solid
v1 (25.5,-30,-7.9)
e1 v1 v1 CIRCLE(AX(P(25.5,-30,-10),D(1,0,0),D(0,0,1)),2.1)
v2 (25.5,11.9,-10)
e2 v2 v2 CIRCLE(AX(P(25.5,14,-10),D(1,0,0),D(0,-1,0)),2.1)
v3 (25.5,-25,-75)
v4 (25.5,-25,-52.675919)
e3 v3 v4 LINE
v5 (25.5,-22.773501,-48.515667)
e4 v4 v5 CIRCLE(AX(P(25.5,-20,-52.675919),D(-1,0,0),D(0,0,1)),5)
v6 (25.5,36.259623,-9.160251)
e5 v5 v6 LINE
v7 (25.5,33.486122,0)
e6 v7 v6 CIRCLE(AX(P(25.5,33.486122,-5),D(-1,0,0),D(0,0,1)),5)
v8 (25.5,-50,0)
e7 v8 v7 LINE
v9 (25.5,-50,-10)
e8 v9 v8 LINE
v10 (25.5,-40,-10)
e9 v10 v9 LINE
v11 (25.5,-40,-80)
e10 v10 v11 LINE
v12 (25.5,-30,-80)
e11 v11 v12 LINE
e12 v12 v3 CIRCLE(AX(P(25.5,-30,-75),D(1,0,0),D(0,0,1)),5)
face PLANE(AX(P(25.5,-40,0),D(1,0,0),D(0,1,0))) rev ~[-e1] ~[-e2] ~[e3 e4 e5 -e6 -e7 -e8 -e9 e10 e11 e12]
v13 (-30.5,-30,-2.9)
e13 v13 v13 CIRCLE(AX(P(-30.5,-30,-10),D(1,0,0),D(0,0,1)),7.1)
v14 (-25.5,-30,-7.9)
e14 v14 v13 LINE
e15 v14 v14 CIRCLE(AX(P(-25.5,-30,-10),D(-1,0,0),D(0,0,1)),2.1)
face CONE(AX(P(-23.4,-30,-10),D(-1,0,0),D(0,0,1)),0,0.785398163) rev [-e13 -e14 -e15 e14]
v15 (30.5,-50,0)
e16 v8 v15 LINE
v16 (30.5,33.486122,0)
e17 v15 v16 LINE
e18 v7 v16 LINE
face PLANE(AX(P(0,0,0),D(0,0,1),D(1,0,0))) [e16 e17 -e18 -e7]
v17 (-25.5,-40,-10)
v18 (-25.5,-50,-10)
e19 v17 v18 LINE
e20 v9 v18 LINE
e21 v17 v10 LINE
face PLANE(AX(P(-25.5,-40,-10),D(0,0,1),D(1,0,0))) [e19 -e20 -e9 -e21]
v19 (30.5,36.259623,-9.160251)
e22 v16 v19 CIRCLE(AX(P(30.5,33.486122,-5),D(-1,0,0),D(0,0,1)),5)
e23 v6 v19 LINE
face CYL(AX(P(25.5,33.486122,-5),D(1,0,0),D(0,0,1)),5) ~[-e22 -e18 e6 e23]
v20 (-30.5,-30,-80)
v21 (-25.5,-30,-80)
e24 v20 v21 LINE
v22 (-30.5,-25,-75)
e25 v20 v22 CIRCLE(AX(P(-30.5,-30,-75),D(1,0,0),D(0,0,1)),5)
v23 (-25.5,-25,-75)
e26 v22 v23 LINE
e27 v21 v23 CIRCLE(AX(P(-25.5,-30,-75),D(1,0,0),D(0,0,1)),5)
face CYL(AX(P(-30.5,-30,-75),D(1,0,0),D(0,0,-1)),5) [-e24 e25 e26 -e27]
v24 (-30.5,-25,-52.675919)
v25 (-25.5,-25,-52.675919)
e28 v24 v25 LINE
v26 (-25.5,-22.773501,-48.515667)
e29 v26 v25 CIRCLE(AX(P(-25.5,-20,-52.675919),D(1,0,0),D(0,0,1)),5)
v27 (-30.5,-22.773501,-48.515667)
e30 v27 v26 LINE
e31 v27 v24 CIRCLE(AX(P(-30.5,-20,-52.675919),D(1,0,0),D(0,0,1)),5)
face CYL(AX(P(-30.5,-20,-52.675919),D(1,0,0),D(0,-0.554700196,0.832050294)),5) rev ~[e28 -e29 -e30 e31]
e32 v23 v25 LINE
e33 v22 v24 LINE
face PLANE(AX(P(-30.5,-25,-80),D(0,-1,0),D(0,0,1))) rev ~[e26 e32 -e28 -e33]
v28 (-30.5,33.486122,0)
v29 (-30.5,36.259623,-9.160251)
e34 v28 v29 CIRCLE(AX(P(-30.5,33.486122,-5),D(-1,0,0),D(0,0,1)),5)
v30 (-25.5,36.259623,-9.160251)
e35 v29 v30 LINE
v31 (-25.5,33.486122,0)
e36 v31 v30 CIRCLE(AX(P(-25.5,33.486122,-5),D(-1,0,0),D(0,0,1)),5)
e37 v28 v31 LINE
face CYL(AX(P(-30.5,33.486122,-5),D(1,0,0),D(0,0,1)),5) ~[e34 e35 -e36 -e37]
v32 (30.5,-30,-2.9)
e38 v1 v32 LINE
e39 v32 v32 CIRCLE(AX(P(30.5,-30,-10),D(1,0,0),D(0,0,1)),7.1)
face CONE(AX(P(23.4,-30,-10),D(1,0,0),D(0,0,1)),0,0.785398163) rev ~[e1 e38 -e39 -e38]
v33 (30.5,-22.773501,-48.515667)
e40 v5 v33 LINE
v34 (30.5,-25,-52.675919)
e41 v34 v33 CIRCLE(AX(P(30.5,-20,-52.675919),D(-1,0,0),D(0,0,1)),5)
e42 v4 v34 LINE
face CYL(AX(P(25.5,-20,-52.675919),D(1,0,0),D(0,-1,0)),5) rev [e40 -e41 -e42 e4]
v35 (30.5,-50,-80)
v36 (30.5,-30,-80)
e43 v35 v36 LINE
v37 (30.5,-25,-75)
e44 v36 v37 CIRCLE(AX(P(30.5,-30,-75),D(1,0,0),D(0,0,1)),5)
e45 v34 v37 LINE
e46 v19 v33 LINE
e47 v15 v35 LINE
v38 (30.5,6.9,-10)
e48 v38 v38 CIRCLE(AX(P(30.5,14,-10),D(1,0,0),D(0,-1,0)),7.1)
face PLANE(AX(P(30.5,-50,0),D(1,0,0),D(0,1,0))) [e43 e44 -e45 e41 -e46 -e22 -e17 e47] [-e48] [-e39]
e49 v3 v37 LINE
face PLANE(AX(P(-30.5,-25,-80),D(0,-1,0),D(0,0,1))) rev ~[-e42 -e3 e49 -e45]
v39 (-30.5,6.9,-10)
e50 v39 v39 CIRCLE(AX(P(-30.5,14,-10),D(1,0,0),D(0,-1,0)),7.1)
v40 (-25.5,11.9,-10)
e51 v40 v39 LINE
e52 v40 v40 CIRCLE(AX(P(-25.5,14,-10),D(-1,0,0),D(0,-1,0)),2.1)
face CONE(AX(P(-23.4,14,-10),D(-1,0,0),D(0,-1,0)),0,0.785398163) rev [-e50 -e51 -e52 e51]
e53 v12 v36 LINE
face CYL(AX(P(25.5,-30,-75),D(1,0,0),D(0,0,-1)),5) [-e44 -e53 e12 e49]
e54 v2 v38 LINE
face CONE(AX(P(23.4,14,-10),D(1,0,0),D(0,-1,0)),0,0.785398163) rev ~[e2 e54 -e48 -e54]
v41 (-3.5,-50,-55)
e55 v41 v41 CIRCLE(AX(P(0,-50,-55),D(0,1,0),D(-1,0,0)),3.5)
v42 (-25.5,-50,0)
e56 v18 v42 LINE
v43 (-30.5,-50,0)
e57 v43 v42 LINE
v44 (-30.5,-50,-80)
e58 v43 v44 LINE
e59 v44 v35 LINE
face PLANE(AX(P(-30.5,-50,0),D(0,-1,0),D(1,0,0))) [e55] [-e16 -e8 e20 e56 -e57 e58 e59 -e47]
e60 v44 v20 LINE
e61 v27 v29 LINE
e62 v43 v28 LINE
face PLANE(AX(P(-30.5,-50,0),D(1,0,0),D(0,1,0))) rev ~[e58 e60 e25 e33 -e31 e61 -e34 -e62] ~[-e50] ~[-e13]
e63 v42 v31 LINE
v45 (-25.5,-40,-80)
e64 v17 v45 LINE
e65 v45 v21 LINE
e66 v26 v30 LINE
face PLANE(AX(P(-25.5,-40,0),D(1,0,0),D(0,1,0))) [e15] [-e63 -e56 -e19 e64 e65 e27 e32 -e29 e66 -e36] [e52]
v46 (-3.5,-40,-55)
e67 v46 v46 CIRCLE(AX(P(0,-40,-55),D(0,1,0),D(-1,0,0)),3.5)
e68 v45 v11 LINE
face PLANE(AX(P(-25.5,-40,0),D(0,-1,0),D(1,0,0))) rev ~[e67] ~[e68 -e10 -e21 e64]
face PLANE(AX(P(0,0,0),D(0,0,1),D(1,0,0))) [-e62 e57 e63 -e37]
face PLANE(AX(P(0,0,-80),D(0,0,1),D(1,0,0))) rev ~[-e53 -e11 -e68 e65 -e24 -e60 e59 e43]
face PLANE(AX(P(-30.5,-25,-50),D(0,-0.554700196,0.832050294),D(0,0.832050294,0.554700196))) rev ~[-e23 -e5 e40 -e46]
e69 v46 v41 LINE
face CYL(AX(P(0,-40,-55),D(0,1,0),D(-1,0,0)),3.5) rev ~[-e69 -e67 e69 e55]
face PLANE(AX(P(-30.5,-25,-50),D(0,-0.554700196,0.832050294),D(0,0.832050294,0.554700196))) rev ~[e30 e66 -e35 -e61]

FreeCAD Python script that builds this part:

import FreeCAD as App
import Part
import Sketcher
Q = App.Units.Quantity


def edges_at(feature, points):
    """Names of the edges that pass closest to the given points."""
    edges = feature.Shape.Edges
    near = lambda p: min(range(len(edges)), key=lambda i: edges[i].distToShape(Part.Vertex(*p))[0])
    return sorted({f"Edge{near(p) + 1}" for p in points})


def add_polygon(sketch, points):
    """Adds a closed chain of lines whose ends are joined by coincident constraints."""
    first, n = sketch.GeometryCount, len(points)
    for a, b in zip(points, points[1:] + points[:1]):
        sketch.addGeometry(Part.LineSegment(App.Vector(*a, 0), App.Vector(*b, 0)), False)
    for i in range(n):
        sketch.addConstraint(Sketcher.Constraint("Coincident", first + i, 2, first + (i + 1) % n, 1))

doc = App.newDocument("Part")
body = doc.addObject("PartDesign::Body", "Body")

# Sketch on XY plane
sketch1 = body.newObject("Sketcher::SketchObject", "Sketch")
sketch1.AttachmentSupport = (doc.getObject("XY_Plane"), [""])
sketch1.MapMode = "FlatFace"
add_polygon(sketch1, [(-30, 50), (-30, -50), (30, -50), (30, 50)])  # lines 0-3
sketch1.addConstraint(Sketcher.Constraint("Vertical", 0))
sketch1.addConstraint(Sketcher.Constraint("Horizontal", 1))
sketch1.addConstraint(Sketcher.Constraint("Vertical", 2))
sketch1.addConstraint(Sketcher.Constraint("Horizontal", 3))
sketch1.addConstraint(Sketcher.Constraint("Symmetric", 0, 2, 2, 2, -1, 1))
sketch1.addConstraint(Sketcher.Constraint("DistanceX", 1, 1, 1, 2, Q("61 mm")))
sketch1.addConstraint(Sketcher.Constraint("DistanceY", 0, 2, 0, 1, Q("100 mm")))
pad1 = body.newObject("PartDesign::Pad", "Pad")
pad1.Profile = sketch1
pad1.Length = 80
pad1.Reversed = True

# Sketch on YZ plane
sketch2 = body.newObject("Sketcher::SketchObject", "Sketch001")
sketch2.AttachmentSupport = (doc.getObject("YZ_Plane"), [""])
sketch2.MapMode = "FlatFace"
sketch2.AttachmentOffset = App.Placement(App.Vector(0, 0, -30.5), App.Rotation())
add_polygon(sketch2, [(65, -95), (-65, -95), (-65, 15), (65, 15)])  # lines 0-3
add_polygon(sketch2, [(-50, -80), (-25, -80), (-25, -50), (50, 0), (-50, 0)])  # lines 4-8
sketch2.addConstraint(Sketcher.Constraint("Horizontal", 0))
sketch2.addConstraint(Sketcher.Constraint("Vertical", 1))
sketch2.addConstraint(Sketcher.Constraint("Horizontal", 2))
sketch2.addConstraint(Sketcher.Constraint("Vertical", 3))
sketch2.addConstraint(Sketcher.Constraint("Horizontal", 4))
sketch2.addConstraint(Sketcher.Constraint("Vertical", 5))
sketch2.addConstraint(Sketcher.Constraint("Horizontal", 7))
sketch2.addConstraint(Sketcher.Constraint("Vertical", 8))
sketch2.addConstraint(Sketcher.Constraint("Symmetric", 6, 2, 7, 2, -1, 1))
sketch2.addConstraint(Sketcher.Constraint("DistanceX", 4, 1, 4, 2, Q("25 mm")))
sketch2.addConstraint(Sketcher.Constraint("DistanceX", 7, 2, 7, 1, Q("100 mm")))
sketch2.addConstraint(Sketcher.Constraint("DistanceY", 5, 1, 5, 2, Q("30 mm")))
sketch2.addConstraint(Sketcher.Constraint("DistanceY", 8, 2, 8, 1, Q("80 mm")))
sketch2.addConstraint(Sketcher.Constraint("DistanceX", 0, 2, 0, 1, Q("130.37 mm")))
sketch2.addConstraint(Sketcher.Constraint("DistanceY", 1, 1, 1, 2, Q("110.37 mm")))
sketch2.addConstraint(Sketcher.Constraint("DistanceX", 0, 2, -1, 1, Q("65.185 mm")))
sketch2.addConstraint(Sketcher.Constraint("DistanceY", 0, 2, -1, 1, Q("95.185 mm")))
pocket1 = body.newObject("PartDesign::Pocket", "Pocket")
pocket1.Profile = sketch2
pocket1.Type = "ThroughAll"
pocket1.Reversed = True

# Sketch on XY plane
sketch3 = body.newObject("Sketcher::SketchObject", "Sketch002")
sketch3.AttachmentSupport = (doc.getObject("XY_Plane"), [""])
sketch3.MapMode = "FlatFace"
add_polygon(sketch3, [(-26, 50), (-26, -40), (26, -40), (26, 50)])  # lines 0-3
sketch3.addConstraint(Sketcher.Constraint("Vertical", 0))
sketch3.addConstraint(Sketcher.Constraint("Horizontal", 1))
sketch3.addConstraint(Sketcher.Constraint("Vertical", 2))
sketch3.addConstraint(Sketcher.Constraint("Horizontal", 3))
sketch3.addConstraint(Sketcher.Constraint("DistanceX", 1, 1, 1, 2, Q("51 mm")))
sketch3.addConstraint(Sketcher.Constraint("DistanceY", 0, 2, 0, 1, Q("90 mm")))
sketch3.addConstraint(Sketcher.Constraint("DistanceY", 0, 2, -1, 1, Q("40 mm")))
sketch3.addConstraint(Sketcher.Constraint("DistanceX", 0, 2, -1, 1, Q("25.5 mm")))
pocket2 = body.newObject("PartDesign::Pocket", "Pocket001")
pocket2.Profile = sketch3
pocket2.Type = "ThroughAll"

# Sketch on XZ plane
sketch4 = body.newObject("Sketcher::SketchObject", "Sketch003")
sketch4.AttachmentSupport = (doc.getObject("XZ_Plane"), [""])
sketch4.MapMode = "FlatFace"
sketch4.AttachmentOffset = App.Placement(App.Vector(0, 0, 40), App.Rotation())
add_polygon(sketch4, [(-26, -10), (-26, 0), (26, 0), (26, -10)])  # lines 0-3
sketch4.addConstraint(Sketcher.Constraint("Vertical", 0))
sketch4.addConstraint(Sketcher.Constraint("Horizontal", 1))
sketch4.addConstraint(Sketcher.Constraint("Vertical", 2))
sketch4.addConstraint(Sketcher.Constraint("Horizontal", 3))
sketch4.addConstraint(Sketcher.Constraint("Symmetric", 0, 2, 1, 2, -1, 1))
sketch4.addConstraint(Sketcher.Constraint("DistanceX", 1, 1, 1, 2, Q("51 mm")))
sketch4.addConstraint(Sketcher.Constraint("DistanceY", 0, 1, 0, 2, Q("10 mm")))
pocket3 = body.newObject("PartDesign::Pocket", "Pocket002")
pocket3.Profile = sketch4
pocket3.Type = "ThroughAll"
pocket3.Reversed = True

# Sketch on XY plane
sketch5 = body.newObject("Sketcher::SketchObject", "Sketch004")
sketch5.AttachmentSupport = (doc.getObject("XY_Plane"), [""])
sketch5.MapMode = "FlatFace"
sketch5.AttachmentOffset = App.Placement(App.Vector(0, 0, -10), App.Rotation())
add_polygon(sketch5, [(-30, 7), (-23, 14), (-30, 14)])  # lines 0-2
sketch5.addGeometry(Part.LineSegment(App.Vector(-30, 14, 0), App.Vector(-23, 14, 0)), True)  # axis
sketch5.addConstraint(Sketcher.Constraint("Horizontal", 1))
sketch5.addConstraint(Sketcher.Constraint("Vertical", 2))
sketch5.addConstraint(Sketcher.Constraint("Horizontal", 3))
sketch5.addConstraint(Sketcher.Constraint("Coincident", 3, 1, 1, 2))
sketch5.addConstraint(Sketcher.Constraint("Equal", 1, 3))
sketch5.addConstraint(Sketcher.Constraint("Equal", 3, 2))
sketch5.addConstraint(Sketcher.Constraint("DistanceX", 1, 2, 1, 1, Q("7.1 mm")))
sketch5.addConstraint(Sketcher.Constraint("DistanceY", -1, 1, 0, 2, Q("14 mm")))
sketch5.addConstraint(Sketcher.Constraint("DistanceX", 0, 2, -1, 1, Q("23.4 mm")))
groove = body.newObject("PartDesign::Groove", "Groove")
groove.Profile = sketch5
groove.ReferenceAxis = (sketch5, ["Axis0"])
groove.Angle = 360

# Sketch on XY plane
sketch6 = body.newObject("Sketcher::SketchObject", "Sketch005")
sketch6.AttachmentSupport = (doc.getObject("XY_Plane"), [""])
sketch6.MapMode = "FlatFace"
sketch6.AttachmentOffset = App.Placement(App.Vector(0, 0, -10), App.Rotation())
add_polygon(sketch6, [(-30, -37), (-23, -30), (-30, -30)])  # lines 0-2
sketch6.addGeometry(Part.LineSegment(App.Vector(-30, -30, 0), App.Vector(-23, -30, 0)), True)  # axis
sketch6.addConstraint(Sketcher.Constraint("Horizontal", 1))
sketch6.addConstraint(Sketcher.Constraint("Vertical", 2))
sketch6.addConstraint(Sketcher.Constraint("Horizontal", 3))
sketch6.addConstraint(Sketcher.Constraint("Coincident", 3, 1, 1, 2))
sketch6.addConstraint(Sketcher.Constraint("Equal", 1, 3))
sketch6.addConstraint(Sketcher.Constraint("Equal", 3, 2))
sketch6.addConstraint(Sketcher.Constraint("DistanceX", 1, 2, 1, 1, Q("7.1 mm")))
sketch6.addConstraint(Sketcher.Constraint("DistanceY", 0, 2, -1, 1, Q("30 mm")))
sketch6.addConstraint(Sketcher.Constraint("DistanceX", 0, 2, -1, 1, Q("23.4 mm")))
groove2 = body.newObject("PartDesign::Groove", "Groove001")
groove2.Profile = sketch6
groove2.ReferenceAxis = (sketch6, ["Axis0"])
groove2.Angle = 360
doc.recompute()

mirrored = body.newObject("PartDesign::Mirrored", "Mirrored")
mirrored.Originals = [groove, groove2]
mirrored.MirrorPlane = (doc.getObject("YZ_Plane"), [""])
body.Tip = mirrored
doc.recompute()

fillet = body.newObject("PartDesign::Fillet", "Fillet")
fillet.Base = (mirrored, edges_at(mirrored, [(-28, 50, 0), (28, 50, 0)]))
fillet.Radius = 5
doc.recompute()

fillet2 = body.newObject("PartDesign::Fillet", "Fillet001")
fillet2.Base = (fillet, edges_at(fillet, [
    (28, -25, -80),
    (28, -25, -50),
    (-28, -25, -50),
    (-28, -25, -80),
]))
fillet2.Radius = 5

# Sketch on XZ plane
sketch7 = body.newObject("Sketcher::SketchObject", "Sketch006")
sketch7.AttachmentSupport = (doc.getObject("XZ_Plane"), [""])
sketch7.MapMode = "FlatFace"
sketch7.AttachmentOffset = App.Placement(App.Vector(0, 0, 40), App.Rotation())
sketch7.addGeometry(Part.Circle(App.Vector(0, -55, 0), App.Vector(0, 0, 1), 3.5), False)
sketch7.addConstraint(Sketcher.Constraint("PointOnObject", 0, 3, -2))
sketch7.addConstraint(Sketcher.Constraint("Diameter", 0, Q("7 mm")))
sketch7.addConstraint(Sketcher.Constraint("DistanceY", 0, 3, -1, 1, Q("55 mm")))
pocket4 = body.newObject("PartDesign::Pocket", "Pocket003")
pocket4.Profile = sketch7
pocket4.Type = "ThroughAll"
pocket4.Reversed = True

doc.recompute()
